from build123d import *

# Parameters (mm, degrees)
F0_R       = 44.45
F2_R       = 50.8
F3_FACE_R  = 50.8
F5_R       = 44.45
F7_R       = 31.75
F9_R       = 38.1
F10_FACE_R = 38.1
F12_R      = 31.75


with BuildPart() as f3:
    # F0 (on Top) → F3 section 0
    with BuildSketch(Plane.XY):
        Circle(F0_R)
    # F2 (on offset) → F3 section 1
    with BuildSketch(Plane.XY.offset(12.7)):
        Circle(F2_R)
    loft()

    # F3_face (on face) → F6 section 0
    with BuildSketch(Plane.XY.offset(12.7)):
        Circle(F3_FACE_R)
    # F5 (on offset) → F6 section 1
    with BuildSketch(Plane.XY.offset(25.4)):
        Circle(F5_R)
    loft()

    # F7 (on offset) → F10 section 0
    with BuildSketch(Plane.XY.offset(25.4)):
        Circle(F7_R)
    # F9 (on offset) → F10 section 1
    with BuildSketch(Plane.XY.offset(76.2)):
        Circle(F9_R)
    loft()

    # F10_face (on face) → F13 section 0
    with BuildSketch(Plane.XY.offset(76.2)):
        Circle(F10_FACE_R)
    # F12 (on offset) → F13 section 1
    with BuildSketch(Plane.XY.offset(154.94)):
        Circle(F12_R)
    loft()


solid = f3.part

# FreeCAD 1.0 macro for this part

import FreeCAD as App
import Part
import Sketcher
Q = App.Units.Quantity

doc = App.newDocument("Part")
body = doc.addObject("PartDesign::Body", "Body")

# Sketch on XY plane
sketch1 = body.newObject("Sketcher::SketchObject", "Sketch")
sketch1.AttachmentSupport = (doc.getObject("XY_Plane"), [""])
sketch1.MapMode = "FlatFace"
sketch1.addGeometry(Part.Circle(App.Vector(0, 0, 0), App.Vector(0, 0, 1), 44), False)
sketch1.addConstraint([
    Sketcher.Constraint("Coincident", 0, 3, -1, 1),
    Sketcher.Constraint("Diameter", 0, Q("3.5 in")),
])

# Sketch on XY plane
sketch2 = body.newObject("Sketcher::SketchObject", "Sketch001")
sketch2.AttachmentSupport = (doc.getObject("XY_Plane"), [""])
sketch2.MapMode = "FlatFace"
sketch2.AttachmentOffset = App.Placement(App.Vector(0, 0, 0.5 * 25.4), App.Rotation())
sketch2.addGeometry(Part.Circle(App.Vector(0, 0, 0), App.Vector(0, 0, 1), 51), False)
sketch2.addConstraint([
    Sketcher.Constraint("Coincident", 0, 3, -1, 1),
    Sketcher.Constraint("Diameter", 0, Q("4 in")),
])

additiveloft = body.newObject("PartDesign::AdditiveLoft", "AdditiveLoft")
additiveloft.Profile = sketch1
additiveloft.Sections = [sketch2]

# Sketch on XY plane
sketch3 = body.newObject("Sketcher::SketchObject", "Sketch002")
sketch3.AttachmentSupport = (doc.getObject("XY_Plane"), [""])
sketch3.MapMode = "FlatFace"
sketch3.AttachmentOffset = App.Placement(App.Vector(0, 0, 0.5 * 25.4), App.Rotation())
sketch3.addGeometry(Part.Circle(App.Vector(0, 0, 0), App.Vector(0, 0, 1), 51), False)
sketch3.addConstraint([
    Sketcher.Constraint("Coincident", 0, 3, -1, 1),
    Sketcher.Constraint("Diameter", 0, Q("4 in")),
])

# Sketch on XY plane
sketch4 = body.newObject("Sketcher::SketchObject", "Sketch003")
sketch4.AttachmentSupport = (doc.getObject("XY_Plane"), [""])
sketch4.MapMode = "FlatFace"
sketch4.AttachmentOffset = App.Placement(App.Vector(0, 0, 1 * 25.4), App.Rotation())
sketch4.addGeometry(Part.Circle(App.Vector(0, 0, 0), App.Vector(0, 0, 1), 44), False)
sketch4.addConstraint([
    Sketcher.Constraint("Coincident", 0, 3, -1, 1),
    Sketcher.Constraint("Diameter", 0, Q("3.5 in")),
])

additiveloft2 = body.newObject("PartDesign::AdditiveLoft", "AdditiveLoft001")
additiveloft2.Profile = sketch3
additiveloft2.Sections = [sketch4]

# Sketch on XY plane
sketch5 = body.newObject("Sketcher::SketchObject", "Sketch004")
sketch5.AttachmentSupport = (doc.getObject("XY_Plane"), [""])
sketch5.MapMode = "FlatFace"
sketch5.AttachmentOffset = App.Placement(App.Vector(0, 0, 1 * 25.4), App.Rotation())
sketch5.addGeometry(Part.Circle(App.Vector(0, 0, 0), App.Vector(0, 0, 1), 32), False)
sketch5.addConstraint([
    Sketcher.Constraint("Coincident", 0, 3, -1, 1),
    Sketcher.Constraint("Diameter", 0, Q("2.5 in")),
])

# Sketch on XY plane
sketch6 = body.newObject("Sketcher::SketchObject", "Sketch005")
sketch6.AttachmentSupport = (doc.getObject("XY_Plane"), [""])
sketch6.MapMode = "FlatFace"
sketch6.AttachmentOffset = App.Placement(App.Vector(0, 0, 3 * 25.4), App.Rotation())
sketch6.addGeometry(Part.Circle(App.Vector(0, 0, 0), App.Vector(0, 0, 1), 38), False)
sketch6.addConstraint([
    Sketcher.Constraint("Coincident", 0, 3, -1, 1),
    Sketcher.Constraint("Diameter", 0, Q("3 in")),
])

additiveloft3 = body.newObject("PartDesign::AdditiveLoft", "AdditiveLoft002")
additiveloft3.Profile = sketch5
additiveloft3.Sections = [sketch6]

# Sketch on XY plane
sketch7 = body.newObject("Sketcher::SketchObject", "Sketch006")
sketch7.AttachmentSupport = (doc.getObject("XY_Plane"), [""])
sketch7.MapMode = "FlatFace"
sketch7.AttachmentOffset = App.Placement(App.Vector(0, 0, 3 * 25.4), App.Rotation())
sketch7.addGeometry(Part.Circle(App.Vector(0, 0, 0), App.Vector(0, 0, 1), 38), False)
sketch7.addConstraint([
    Sketcher.Constraint("Coincident", 0, 3, -1, 1),
    Sketcher.Constraint("Diameter", 0, Q("3 in")),
])

# Sketch on XY plane
sketch8 = body.newObject("Sketcher::SketchObject", "Sketch007")
sketch8.AttachmentSupport = (doc.getObject("XY_Plane"), [""])
sketch8.MapMode = "FlatFace"
sketch8.AttachmentOffset = App.Placement(App.Vector(0, 0, 6.1 * 25.4), App.Rotation())
sketch8.addGeometry(Part.Circle(App.Vector(0, 0, 0), App.Vector(0, 0, 1), 32), False)
sketch8.addConstraint([
    Sketcher.Constraint("Coincident", 0, 3, -1, 1),
    Sketcher.Constraint("Diameter", 0, Q("2.5 in")),
])

additiveloft4 = body.newObject("PartDesign::AdditiveLoft", "AdditiveLoft003")
additiveloft4.Profile = sketch7
additiveloft4.Sections = [sketch8]

doc.recompute()
